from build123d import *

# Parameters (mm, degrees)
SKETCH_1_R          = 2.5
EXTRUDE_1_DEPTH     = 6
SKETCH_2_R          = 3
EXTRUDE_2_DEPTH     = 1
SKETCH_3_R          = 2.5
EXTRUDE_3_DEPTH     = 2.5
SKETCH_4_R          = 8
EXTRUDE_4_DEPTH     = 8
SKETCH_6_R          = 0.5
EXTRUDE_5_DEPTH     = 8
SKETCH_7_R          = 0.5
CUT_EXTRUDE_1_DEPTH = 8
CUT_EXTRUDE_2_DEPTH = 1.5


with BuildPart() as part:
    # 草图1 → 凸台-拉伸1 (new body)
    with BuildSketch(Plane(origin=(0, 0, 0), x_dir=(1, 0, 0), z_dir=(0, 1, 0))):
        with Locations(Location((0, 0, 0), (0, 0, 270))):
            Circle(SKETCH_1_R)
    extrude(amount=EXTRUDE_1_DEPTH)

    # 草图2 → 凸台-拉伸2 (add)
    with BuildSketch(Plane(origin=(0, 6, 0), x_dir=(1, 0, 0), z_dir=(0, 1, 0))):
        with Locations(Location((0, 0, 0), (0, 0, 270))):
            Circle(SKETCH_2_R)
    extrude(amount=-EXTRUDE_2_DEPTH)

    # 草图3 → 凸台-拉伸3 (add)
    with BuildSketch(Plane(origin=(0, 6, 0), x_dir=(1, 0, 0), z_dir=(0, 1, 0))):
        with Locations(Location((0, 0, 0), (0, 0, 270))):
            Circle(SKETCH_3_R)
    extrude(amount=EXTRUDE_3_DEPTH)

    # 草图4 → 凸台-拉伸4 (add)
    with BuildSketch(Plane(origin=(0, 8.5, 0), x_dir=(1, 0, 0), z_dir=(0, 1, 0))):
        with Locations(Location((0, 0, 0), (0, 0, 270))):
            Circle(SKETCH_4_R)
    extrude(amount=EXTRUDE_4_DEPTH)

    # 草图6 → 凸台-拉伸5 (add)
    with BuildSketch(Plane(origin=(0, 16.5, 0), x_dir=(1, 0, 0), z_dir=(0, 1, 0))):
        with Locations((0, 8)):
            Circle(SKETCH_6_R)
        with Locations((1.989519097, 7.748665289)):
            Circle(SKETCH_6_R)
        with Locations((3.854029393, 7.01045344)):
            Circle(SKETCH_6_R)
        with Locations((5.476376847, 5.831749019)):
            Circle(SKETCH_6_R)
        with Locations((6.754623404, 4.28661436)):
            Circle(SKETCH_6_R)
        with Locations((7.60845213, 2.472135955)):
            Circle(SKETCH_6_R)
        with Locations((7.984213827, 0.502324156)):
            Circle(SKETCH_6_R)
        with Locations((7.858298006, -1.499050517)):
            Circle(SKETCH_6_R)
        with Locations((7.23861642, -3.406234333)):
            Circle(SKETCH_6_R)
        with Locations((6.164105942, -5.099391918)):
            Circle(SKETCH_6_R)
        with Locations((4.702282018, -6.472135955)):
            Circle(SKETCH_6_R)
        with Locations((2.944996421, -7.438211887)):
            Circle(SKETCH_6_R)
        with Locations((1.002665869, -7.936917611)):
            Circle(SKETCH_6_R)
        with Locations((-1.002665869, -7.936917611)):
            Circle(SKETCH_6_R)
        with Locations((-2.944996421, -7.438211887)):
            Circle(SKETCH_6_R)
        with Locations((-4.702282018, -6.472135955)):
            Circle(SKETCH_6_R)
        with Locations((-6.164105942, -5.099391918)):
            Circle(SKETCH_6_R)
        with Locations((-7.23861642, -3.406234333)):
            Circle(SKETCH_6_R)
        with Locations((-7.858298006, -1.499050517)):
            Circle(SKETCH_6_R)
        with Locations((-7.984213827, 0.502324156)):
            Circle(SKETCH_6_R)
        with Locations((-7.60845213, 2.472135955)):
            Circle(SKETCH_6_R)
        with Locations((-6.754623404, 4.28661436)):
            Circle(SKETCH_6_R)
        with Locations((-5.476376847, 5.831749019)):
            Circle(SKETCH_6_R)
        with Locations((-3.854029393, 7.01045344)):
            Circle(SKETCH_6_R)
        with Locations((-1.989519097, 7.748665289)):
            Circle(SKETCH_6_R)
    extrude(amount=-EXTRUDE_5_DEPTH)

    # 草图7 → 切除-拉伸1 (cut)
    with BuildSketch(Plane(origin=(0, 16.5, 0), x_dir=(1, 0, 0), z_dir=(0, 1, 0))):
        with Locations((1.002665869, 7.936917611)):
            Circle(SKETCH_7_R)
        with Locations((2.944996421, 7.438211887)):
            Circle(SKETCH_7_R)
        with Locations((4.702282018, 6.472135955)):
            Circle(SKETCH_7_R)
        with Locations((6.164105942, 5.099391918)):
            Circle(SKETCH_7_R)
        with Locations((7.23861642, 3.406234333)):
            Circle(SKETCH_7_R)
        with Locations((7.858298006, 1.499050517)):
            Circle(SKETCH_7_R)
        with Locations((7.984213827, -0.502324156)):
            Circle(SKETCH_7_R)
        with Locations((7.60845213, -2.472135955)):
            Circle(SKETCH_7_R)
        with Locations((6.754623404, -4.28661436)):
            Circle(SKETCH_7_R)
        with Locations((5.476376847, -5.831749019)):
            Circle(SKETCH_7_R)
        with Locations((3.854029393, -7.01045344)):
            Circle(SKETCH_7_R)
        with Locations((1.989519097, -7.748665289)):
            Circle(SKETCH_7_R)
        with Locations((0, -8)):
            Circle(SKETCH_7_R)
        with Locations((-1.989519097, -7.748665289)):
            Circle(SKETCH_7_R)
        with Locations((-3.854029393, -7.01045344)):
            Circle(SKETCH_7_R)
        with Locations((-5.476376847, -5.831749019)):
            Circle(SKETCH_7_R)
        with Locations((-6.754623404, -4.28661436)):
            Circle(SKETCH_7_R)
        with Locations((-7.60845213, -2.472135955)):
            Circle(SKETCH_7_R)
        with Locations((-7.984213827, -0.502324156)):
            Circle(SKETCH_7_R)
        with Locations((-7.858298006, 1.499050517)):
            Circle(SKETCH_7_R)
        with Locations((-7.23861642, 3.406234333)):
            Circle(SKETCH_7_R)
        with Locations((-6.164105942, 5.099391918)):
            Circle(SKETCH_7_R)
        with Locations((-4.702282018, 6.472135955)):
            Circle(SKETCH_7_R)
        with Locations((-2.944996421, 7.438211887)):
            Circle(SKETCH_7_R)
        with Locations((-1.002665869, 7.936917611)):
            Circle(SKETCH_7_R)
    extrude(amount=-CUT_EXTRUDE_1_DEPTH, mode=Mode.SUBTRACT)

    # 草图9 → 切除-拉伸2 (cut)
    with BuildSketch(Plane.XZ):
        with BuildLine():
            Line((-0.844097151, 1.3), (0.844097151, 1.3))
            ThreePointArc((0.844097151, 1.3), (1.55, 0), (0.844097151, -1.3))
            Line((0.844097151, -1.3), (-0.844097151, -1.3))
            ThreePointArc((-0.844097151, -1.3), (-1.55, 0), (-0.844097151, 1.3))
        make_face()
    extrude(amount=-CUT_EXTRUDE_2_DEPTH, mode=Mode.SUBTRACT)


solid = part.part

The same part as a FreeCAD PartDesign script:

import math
import FreeCAD as App
import Part
import Sketcher
from FreeCAD import Vector
Q = App.Units.Quantity

doc = App.newDocument("Part")
body = doc.addObject("PartDesign::Body", "Body")

# Sketch on XZ plane
sketch1 = doc.addObject("Sketcher::SketchObject", "Sketch")
body.addObject(sketch1)
sketch1.AttachmentSupport = (doc.XZ_Plane, [""])
sketch1.MapMode = "FlatFace"
sketch1.addGeometry(Part.Circle(Vector(0, 0, 0), Vector(0, 0, 1), 2.5), False)
sketch1.addConstraint([
    Sketcher.Constraint("Coincident", 0, 3, -1, 1),
    Sketcher.Constraint("Diameter", 0, Q("5 mm")),
])
pad1 = doc.addObject("PartDesign::Pad", "Pad")
body.addObject(pad1)
pad1.Profile = sketch1
pad1.Length = 6
pad1.Reversed = True

# Sketch on XZ plane
sketch2 = doc.addObject("Sketcher::SketchObject", "Sketch001")
body.addObject(sketch2)
sketch2.AttachmentSupport = (doc.XZ_Plane, [""])
sketch2.MapMode = "FlatFace"
sketch2.AttachmentOffset = App.Placement(Vector(0, 0, -6), App.Rotation())
sketch2.addGeometry(Part.Circle(Vector(0, 0, 0), Vector(0, 0, 1), 3), False)
sketch2.addConstraint([
    Sketcher.Constraint("Coincident", 0, 3, -1, 1),
    Sketcher.Constraint("Diameter", 0, Q("6 mm")),
])
pad2 = doc.addObject("PartDesign::Pad", "Pad001")
body.addObject(pad2)
pad2.Profile = sketch2
pad2.Length = 1

# Sketch on XZ plane
sketch3 = doc.addObject("Sketcher::SketchObject", "Sketch002")
body.addObject(sketch3)
sketch3.AttachmentSupport = (doc.XZ_Plane, [""])
sketch3.MapMode = "FlatFace"
sketch3.AttachmentOffset = App.Placement(Vector(0, 0, -6), App.Rotation())
sketch3.addGeometry(Part.Circle(Vector(0, 0, 0), Vector(0, 0, 1), 2.5), False)
sketch3.addConstraint([
    Sketcher.Constraint("Coincident", 0, 3, -1, 1),
    Sketcher.Constraint("Diameter", 0, Q("5 mm")),
])
pad3 = doc.addObject("PartDesign::Pad", "Pad002")
body.addObject(pad3)
pad3.Profile = sketch3
pad3.Length = 2.5
pad3.Reversed = True

# Sketch on XZ plane
sketch4 = doc.addObject("Sketcher::SketchObject", "Sketch003")
body.addObject(sketch4)
sketch4.AttachmentSupport = (doc.XZ_Plane, [""])
sketch4.MapMode = "FlatFace"
sketch4.AttachmentOffset = App.Placement(Vector(0, 0, -8.5), App.Rotation())
sketch4.addGeometry(Part.Circle(Vector(0, 0, 0), Vector(0, 0, 1), 8), False)
sketch4.addConstraint([
    Sketcher.Constraint("Coincident", 0, 3, -1, 1),
    Sketcher.Constraint("Diameter", 0, Q("16 mm")),
])
pad4 = doc.addObject("PartDesign::Pad", "Pad003")
body.addObject(pad4)
pad4.Profile = sketch4
pad4.Length = 8
pad4.Reversed = True

# Sketch on XZ plane
sketch5 = doc.addObject("Sketcher::SketchObject", "Sketch004")
body.addObject(sketch5)
sketch5.AttachmentSupport = (doc.XZ_Plane, [""])
sketch5.MapMode = "FlatFace"
sketch5.AttachmentOffset = App.Placement(Vector(0, 0, -16.5), App.Rotation())
sketch5.addGeometry([
    Part.Circle(Vector(0, -8, 0), Vector(0, 0, 1), 0.5),  # 0
    Part.Circle(Vector(1.989519, -7.748665, 0), Vector(0, 0, 1), 0.5),  # 1
    Part.Circle(Vector(3.854029, -7.010453, 0), Vector(0, 0, 1), 0.5),  # 2
    Part.Circle(Vector(5.476377, -5.831749, 0), Vector(0, 0, 1), 0.5),  # 3
    Part.Circle(Vector(6.754623, -4.286614, 0), Vector(0, 0, 1), 0.5),  # 4
    Part.Circle(Vector(7.608452, -2.472136, 0), Vector(0, 0, 1), 0.5),  # 5
    Part.Circle(Vector(7.984214, -0.502324, 0), Vector(0, 0, 1), 0.5),  # 6
    Part.Circle(Vector(7.858298, 1.499051, 0), Vector(0, 0, 1), 0.5),  # 7
    Part.Circle(Vector(7.238616, 3.406234, 0), Vector(0, 0, 1), 0.5),  # 8
    Part.Circle(Vector(6.164106, 5.099392, 0), Vector(0, 0, 1), 0.5),  # 9
    Part.Circle(Vector(4.702282, 6.472136, 0), Vector(0, 0, 1), 0.5),  # 10
    Part.Circle(Vector(2.944996, 7.438212, 0), Vector(0, 0, 1), 0.5),  # 11
    Part.Circle(Vector(1.002666, 7.936918, 0), Vector(0, 0, 1), 0.5),  # 12
    Part.Circle(Vector(-1.002666, 7.936918, 0), Vector(0, 0, 1), 0.5),  # 13
    Part.Circle(Vector(-2.944996, 7.438212, 0), Vector(0, 0, 1), 0.5),  # 14
    Part.Circle(Vector(-4.702282, 6.472136, 0), Vector(0, 0, 1), 0.5),  # 15
    Part.Circle(Vector(-6.164106, 5.099392, 0), Vector(0, 0, 1), 0.5),  # 16
    Part.Circle(Vector(-7.238616, 3.406234, 0), Vector(0, 0, 1), 0.5),  # 17
    Part.Circle(Vector(-7.858298, 1.499051, 0), Vector(0, 0, 1), 0.5),  # 18
    Part.Circle(Vector(-7.984214, -0.502324, 0), Vector(0, 0, 1), 0.5),  # 19
    Part.Circle(Vector(-7.608452, -2.472136, 0), Vector(0, 0, 1), 0.5),  # 20
    Part.Circle(Vector(-6.754623, -4.286614, 0), Vector(0, 0, 1), 0.5),  # 21
    Part.Circle(Vector(-5.476377, -5.831749, 0), Vector(0, 0, 1), 0.5),  # 22
    Part.Circle(Vector(-3.854029, -7.010453, 0), Vector(0, 0, 1), 0.5),  # 23
    Part.Circle(Vector(-1.989519, -7.748665, 0), Vector(0, 0, 1), 0.5),  # 24
], False)
sketch5.addConstraint([
    Sketcher.Constraint("Equal", 0, 1),
    Sketcher.Constraint("Equal", 1, 2),
    Sketcher.Constraint("Equal", 2, 3),
    Sketcher.Constraint("Equal", 3, 4),
    Sketcher.Constraint("Equal", 4, 5),
    Sketcher.Constraint("Equal", 5, 6),
    Sketcher.Constraint("Equal", 6, 7),
    Sketcher.Constraint("Equal", 7, 8),
    Sketcher.Constraint("Equal", 8, 9),
    Sketcher.Constraint("Equal", 9, 10),
    Sketcher.Constraint("Equal", 10, 11),
    Sketcher.Constraint("Equal", 11, 12),
    Sketcher.Constraint("Equal", 12, 13),
    Sketcher.Constraint("Equal", 13, 14),
    Sketcher.Constraint("Equal", 14, 15),
    Sketcher.Constraint("Equal", 15, 16),
    Sketcher.Constraint("Equal", 16, 17),
    Sketcher.Constraint("Equal", 17, 18),
    Sketcher.Constraint("Equal", 18, 19),
    Sketcher.Constraint("Equal", 19, 20),
    Sketcher.Constraint("Equal", 20, 21),
    Sketcher.Constraint("Equal", 21, 22),
    Sketcher.Constraint("Equal", 22, 23),
    Sketcher.Constraint("Equal", 23, 24),
    Sketcher.Constraint("Symmetric", 12, 3, 13, 3, -2),
    Sketcher.Constraint("Symmetric", 11, 3, 14, 3, -2),
    Sketcher.Constraint("Symmetric", 10, 3, 15, 3, -2),
    Sketcher.Constraint("Symmetric", 9, 3, 16, 3, -2),
    Sketcher.Constraint("Symmetric", 8, 3, 17, 3, -2),
    Sketcher.Constraint("Symmetric", 7, 3, 18, 3, -2),
    Sketcher.Constraint("Symmetric", 6, 3, 19, 3, -2),
    Sketcher.Constraint("Symmetric", 5, 3, 20, 3, -2),
    Sketcher.Constraint("Symmetric", 4, 3, 21, 3, -2),
    Sketcher.Constraint("Symmetric", 3, 3, 22, 3, -2),
    Sketcher.Constraint("Symmetric", 2, 3, 23, 3, -2),
    Sketcher.Constraint("Symmetric", 1, 3, 24, 3, -2),
    Sketcher.Constraint("PointOnObject", 0, 3, -2),
    Sketcher.Constraint("Diameter", 0, Q("1 mm")),
    Sketcher.Constraint("DistanceY", 0, 3, -1, 1, Q("8 mm")),
    Sketcher.Constraint("DistanceX", -1, 1, 7, 3, Q("7.858298 mm")),
    Sketcher.Constraint("DistanceY", 3, 3, 7, 3, Q("7.3308 mm")),
    Sketcher.Constraint("DistanceY", 8, 3, 10, 3, Q("3.065902 mm")),
    Sketcher.Constraint("DistanceX", 11, 3, 7, 3, Q("4.913302 mm")),
    Sketcher.Constraint("DistanceX", -1, 1, 1, 3, Q("1.989519 mm")),
    Sketcher.Constraint("DistanceX", -1, 1, 2, 3, Q("3.854029 mm")),
    Sketcher.Constraint("DistanceY", 3, 3, -1, 1, Q("5.831749 mm")),
    Sketcher.Constraint("DistanceY", -1, 1, 9, 3, Q("5.099392 mm")),
    Sketcher.Constraint("DistanceY", -1, 1, 11, 3, Q("7.438212 mm")),
    Sketcher.Constraint("DistanceY", 1, 3, 2, 3, Q("0.738212 mm")),
    Sketcher.Constraint("DistanceY", 2, 3, 4, 3, Q("2.723839 mm")),
    Sketcher.Constraint("DistanceX", 4, 3, 5, 3, Q("0.853829 mm")),
    Sketcher.Constraint("DistanceY", 4, 3, 5, 3, Q("1.814478 mm")),
    Sketcher.Constraint("DistanceX", 5, 3, 6, 3, Q("0.375762 mm")),
    Sketcher.Constraint("DistanceY", 5, 3, 6, 3, Q("1.969812 mm")),
    Sketcher.Constraint("DistanceX", 3, 3, 7, 3, Q("2.381921 mm")),
    Sketcher.Constraint("DistanceX", 8, 3, 7, 3, Q("0.619682 mm")),
    Sketcher.Constraint("DistanceY", 6, 3, 8, 3, Q("3.908558 mm")),
    Sketcher.Constraint("DistanceX", 9, 3, 8, 3, Q("1.07451 mm")),
    Sketcher.Constraint("DistanceX", 10, 3, 6, 3, Q("3.281932 mm")),
    Sketcher.Constraint("DistanceX", 12, 3, 11, 3, Q("1.942331 mm")),
    Sketcher.Constraint("DistanceY", 10, 3, 12, 3, Q("1.464782 mm")),
    Sketcher.Constraint("DistanceX", 14, 3, 10, 3, Q("7.647278 mm")),
    Sketcher.Constraint("DistanceY", 1, 3, -1, 1, Q("7.748665 mm")),
])
pad5 = doc.addObject("PartDesign::Pad", "Pad004")
body.addObject(pad5)
pad5.Profile = sketch5
pad5.Length = 8

# Sketch on XZ plane
sketch6 = doc.addObject("Sketcher::SketchObject", "Sketch005")
body.addObject(sketch6)
sketch6.AttachmentSupport = (doc.XZ_Plane, [""])
sketch6.MapMode = "FlatFace"
sketch6.AttachmentOffset = App.Placement(Vector(0, 0, -16.5), App.Rotation())
sketch6.addGeometry([
    Part.Circle(Vector(1.002666, -7.936918, 0), Vector(0, 0, 1), 0.5),  # 0
    Part.Circle(Vector(2.944996, -7.438212, 0), Vector(0, 0, 1), 0.5),  # 1
    Part.Circle(Vector(4.702282, -6.472136, 0), Vector(0, 0, 1), 0.5),  # 2
    Part.Circle(Vector(6.164106, -5.099392, 0), Vector(0, 0, 1), 0.5),  # 3
    Part.Circle(Vector(7.238616, -3.406234, 0), Vector(0, 0, 1), 0.5),  # 4
    Part.Circle(Vector(7.858298, -1.499051, 0), Vector(0, 0, 1), 0.5),  # 5
    Part.Circle(Vector(7.984214, 0.502324, 0), Vector(0, 0, 1), 0.5),  # 6
    Part.Circle(Vector(7.608452, 2.472136, 0), Vector(0, 0, 1), 0.5),  # 7
    Part.Circle(Vector(6.754623, 4.286614, 0), Vector(0, 0, 1), 0.5),  # 8
    Part.Circle(Vector(5.476377, 5.831749, 0), Vector(0, 0, 1), 0.5),  # 9
    Part.Circle(Vector(3.854029, 7.010453, 0), Vector(0, 0, 1), 0.5),  # 10
    Part.Circle(Vector(1.989519, 7.748665, 0), Vector(0, 0, 1), 0.5),  # 11
    Part.Circle(Vector(0, 8, 0), Vector(0, 0, 1), 0.5),  # 12
    Part.Circle(Vector(-1.989519, 7.748665, 0), Vector(0, 0, 1), 0.5),  # 13
    Part.Circle(Vector(-3.854029, 7.010453, 0), Vector(0, 0, 1), 0.5),  # 14
    Part.Circle(Vector(-5.476377, 5.831749, 0), Vector(0, 0, 1), 0.5),  # 15
    Part.Circle(Vector(-6.754623, 4.286614, 0), Vector(0, 0, 1), 0.5),  # 16
    Part.Circle(Vector(-7.608452, 2.472136, 0), Vector(0, 0, 1), 0.5),  # 17
    Part.Circle(Vector(-7.984214, 0.502324, 0), Vector(0, 0, 1), 0.5),  # 18
    Part.Circle(Vector(-7.858298, -1.499051, 0), Vector(0, 0, 1), 0.5),  # 19
    Part.Circle(Vector(-7.238616, -3.406234, 0), Vector(0, 0, 1), 0.5),  # 20
    Part.Circle(Vector(-6.164106, -5.099392, 0), Vector(0, 0, 1), 0.5),  # 21
    Part.Circle(Vector(-4.702282, -6.472136, 0), Vector(0, 0, 1), 0.5),  # 22
    Part.Circle(Vector(-2.944996, -7.438212, 0), Vector(0, 0, 1), 0.5),  # 23
    Part.Circle(Vector(-1.002666, -7.936918, 0), Vector(0, 0, 1), 0.5),  # 24
], False)
sketch6.addConstraint([
    Sketcher.Constraint("Equal", 0, 1),
    Sketcher.Constraint("Equal", 1, 2),
    Sketcher.Constraint("Equal", 2, 3),
    Sketcher.Constraint("Equal", 3, 4),
    Sketcher.Constraint("Equal", 4, 5),
    Sketcher.Constraint("Equal", 5, 6),
    Sketcher.Constraint("Equal", 6, 7),
    Sketcher.Constraint("Equal", 7, 8),
    Sketcher.Constraint("Equal", 8, 9),
    Sketcher.Constraint("Equal", 9, 10),
    Sketcher.Constraint("Equal", 10, 11),
    Sketcher.Constraint("Equal", 11, 12),
    Sketcher.Constraint("Equal", 12, 13),
    Sketcher.Constraint("Equal", 13, 14),
    Sketcher.Constraint("Equal", 14, 15),
    Sketcher.Constraint("Equal", 15, 16),
    Sketcher.Constraint("Equal", 16, 17),
    Sketcher.Constraint("Equal", 17, 18),
    Sketcher.Constraint("Equal", 18, 19),
    Sketcher.Constraint("Equal", 19, 20),
    Sketcher.Constraint("Equal", 20, 21),
    Sketcher.Constraint("Equal", 21, 22),
    Sketcher.Constraint("Equal", 22, 23),
    Sketcher.Constraint("Equal", 23, 24),
    Sketcher.Constraint("Symmetric", 11, 3, 13, 3, -2),
    Sketcher.Constraint("Symmetric", 10, 3, 14, 3, -2),
    Sketcher.Constraint("Symmetric", 9, 3, 15, 3, -2),
    Sketcher.Constraint("Symmetric", 8, 3, 16, 3, -2),
    Sketcher.Constraint("Symmetric", 7, 3, 17, 3, -2),
    Sketcher.Constraint("Symmetric", 6, 3, 18, 3, -2),
    Sketcher.Constraint("Symmetric", 5, 3, 19, 3, -2),
    Sketcher.Constraint("Symmetric", 4, 3, 20, 3, -2),
    Sketcher.Constraint("Symmetric", 3, 3, 21, 3, -2),
    Sketcher.Constraint("Symmetric", 2, 3, 22, 3, -2),
    Sketcher.Constraint("Symmetric", 1, 3, 23, 3, -2),
    Sketcher.Constraint("Symmetric", 0, 3, 24, 3, -2),
    Sketcher.Constraint("PointOnObject", 12, 3, -2),
    Sketcher.Constraint("Diameter", 0, Q("1 mm")),
    Sketcher.Constraint("DistanceY", -1, 1, 12, 3, Q("8 mm")),
    Sketcher.Constraint("DistanceX", -1, 1, 5, 3, Q("7.858298 mm")),
    Sketcher.Constraint("DistanceY", 2, 3, 4, 3, Q("3.065902 mm")),
    Sketcher.Constraint("DistanceX", 1, 3, 5, 3, Q("4.913302 mm")),
    Sketcher.Constraint("DistanceY", 5, 3, 9, 3, Q("7.3308 mm")),
    Sketcher.Constraint("DistanceY", 1, 3, -1, 1, Q("7.438212 mm")),
    Sketcher.Constraint("DistanceY", 3, 3, -1, 1, Q("5.099392 mm")),
    Sketcher.Constraint("DistanceY", 5, 3, -1, 1, Q("1.499051 mm")),
    Sketcher.Constraint("DistanceX", -1, 1, 10, 3, Q("3.854029 mm")),
    Sketcher.Constraint("DistanceX", -1, 1, 11, 3, Q("1.989519 mm")),
    Sketcher.Constraint("DistanceX", 0, 3, 1, 3, Q("1.942331 mm")),
    Sketcher.Constraint("DistanceY", 0, 3, 2, 3, Q("1.464782 mm")),
    Sketcher.Constraint("DistanceX", 1, 3, 3, 3, Q("3.21911 mm")),
    Sketcher.Constraint("DistanceX", 3, 3, 4, 3, Q("1.07451 mm")),
    Sketcher.Constraint("DistanceY", 4, 3, 6, 3, Q("3.908558 mm")),
    Sketcher.Constraint("DistanceX", 2, 3, 6, 3, Q("3.281932 mm")),
    Sketcher.Constraint("DistanceX", 7, 3, 6, 3, Q("0.375762 mm")),
    Sketcher.Constraint("DistanceY", 6, 3, 7, 3, Q("1.969812 mm")),
    Sketcher.Constraint("DistanceX", 8, 3, 7, 3, Q("0.853829 mm")),
    Sketcher.Constraint("DistanceY", 7, 3, 8, 3, Q("1.814478 mm")),
    Sketcher.Constraint("DistanceX", 9, 3, 5, 3, Q("2.381921 mm")),
    Sketcher.Constraint("DistanceY", 8, 3, 10, 3, Q("2.723839 mm")),
    Sketcher.Constraint("DistanceY", 10, 3, 11, 3, Q("0.738212 mm")),
    Sketcher.Constraint("DistanceX", 22, 3, 1, 3, Q("7.647278 mm")),
    Sketcher.Constraint("DistanceY", 0, 3, -1, 1, Q("7.936918 mm")),
])
pocket1 = doc.addObject("PartDesign::Pocket", "Pocket")
body.addObject(pocket1)
pocket1.Profile = sketch6
pocket1.Length = 8
pocket1.Reversed = True

# Sketch on XZ plane
sketch7 = doc.addObject("Sketcher::SketchObject", "Sketch006")
body.addObject(sketch7)
sketch7.AttachmentSupport = (doc.XZ_Plane, [""])
sketch7.MapMode = "FlatFace"
sketch7.addGeometry([
    Part.LineSegment(Vector(0.844097, 1.3, 0), Vector(-0.844097, 1.3, 0)),
    Part.ArcOfCircle(Part.Circle(Vector(0, 0, 0), Vector(0, 0, 1), 1.55), math.radians(122.995885), math.radians(237.004115)),
    Part.LineSegment(Vector(-0.844097, -1.3, 0), Vector(0.844097, -1.3, 0)),
    Part.ArcOfCircle(Part.Circle(Vector(0, 0, 0), Vector(0, 0, 1), 1.55), math.radians(-57.004115), math.radians(57.004115)),
], False)
sketch7.addConstraint([
    Sketcher.Constraint("Coincident", 0, 2, 1, 1),
    Sketcher.Constraint("Coincident", 1, 2, 2, 1),
    Sketcher.Constraint("Coincident", 2, 2, 3, 1),
    Sketcher.Constraint("Coincident", 3, 2, 0, 1),
    Sketcher.Constraint("Horizontal", 0),
    Sketcher.Constraint("Horizontal", 2),
    Sketcher.Constraint("Coincident", 1, 3, -1, 1),
    Sketcher.Constraint("Coincident", 3, 3, -1, 1),
    Sketcher.Constraint("Equal", 1, 3),
    Sketcher.Constraint("Vertical", 0, 2, 1, 2),
    Sketcher.Constraint("Radius", 1, Q("1.55 mm")),
    Sketcher.Constraint("DistanceY", -1, 1, 0, 2, Q("1.3 mm")),
])
pocket2 = doc.addObject("PartDesign::Pocket", "Pocket001")
body.addObject(pocket2)
pocket2.Profile = sketch7
pocket2.Length = 1.5

doc.recompute()
